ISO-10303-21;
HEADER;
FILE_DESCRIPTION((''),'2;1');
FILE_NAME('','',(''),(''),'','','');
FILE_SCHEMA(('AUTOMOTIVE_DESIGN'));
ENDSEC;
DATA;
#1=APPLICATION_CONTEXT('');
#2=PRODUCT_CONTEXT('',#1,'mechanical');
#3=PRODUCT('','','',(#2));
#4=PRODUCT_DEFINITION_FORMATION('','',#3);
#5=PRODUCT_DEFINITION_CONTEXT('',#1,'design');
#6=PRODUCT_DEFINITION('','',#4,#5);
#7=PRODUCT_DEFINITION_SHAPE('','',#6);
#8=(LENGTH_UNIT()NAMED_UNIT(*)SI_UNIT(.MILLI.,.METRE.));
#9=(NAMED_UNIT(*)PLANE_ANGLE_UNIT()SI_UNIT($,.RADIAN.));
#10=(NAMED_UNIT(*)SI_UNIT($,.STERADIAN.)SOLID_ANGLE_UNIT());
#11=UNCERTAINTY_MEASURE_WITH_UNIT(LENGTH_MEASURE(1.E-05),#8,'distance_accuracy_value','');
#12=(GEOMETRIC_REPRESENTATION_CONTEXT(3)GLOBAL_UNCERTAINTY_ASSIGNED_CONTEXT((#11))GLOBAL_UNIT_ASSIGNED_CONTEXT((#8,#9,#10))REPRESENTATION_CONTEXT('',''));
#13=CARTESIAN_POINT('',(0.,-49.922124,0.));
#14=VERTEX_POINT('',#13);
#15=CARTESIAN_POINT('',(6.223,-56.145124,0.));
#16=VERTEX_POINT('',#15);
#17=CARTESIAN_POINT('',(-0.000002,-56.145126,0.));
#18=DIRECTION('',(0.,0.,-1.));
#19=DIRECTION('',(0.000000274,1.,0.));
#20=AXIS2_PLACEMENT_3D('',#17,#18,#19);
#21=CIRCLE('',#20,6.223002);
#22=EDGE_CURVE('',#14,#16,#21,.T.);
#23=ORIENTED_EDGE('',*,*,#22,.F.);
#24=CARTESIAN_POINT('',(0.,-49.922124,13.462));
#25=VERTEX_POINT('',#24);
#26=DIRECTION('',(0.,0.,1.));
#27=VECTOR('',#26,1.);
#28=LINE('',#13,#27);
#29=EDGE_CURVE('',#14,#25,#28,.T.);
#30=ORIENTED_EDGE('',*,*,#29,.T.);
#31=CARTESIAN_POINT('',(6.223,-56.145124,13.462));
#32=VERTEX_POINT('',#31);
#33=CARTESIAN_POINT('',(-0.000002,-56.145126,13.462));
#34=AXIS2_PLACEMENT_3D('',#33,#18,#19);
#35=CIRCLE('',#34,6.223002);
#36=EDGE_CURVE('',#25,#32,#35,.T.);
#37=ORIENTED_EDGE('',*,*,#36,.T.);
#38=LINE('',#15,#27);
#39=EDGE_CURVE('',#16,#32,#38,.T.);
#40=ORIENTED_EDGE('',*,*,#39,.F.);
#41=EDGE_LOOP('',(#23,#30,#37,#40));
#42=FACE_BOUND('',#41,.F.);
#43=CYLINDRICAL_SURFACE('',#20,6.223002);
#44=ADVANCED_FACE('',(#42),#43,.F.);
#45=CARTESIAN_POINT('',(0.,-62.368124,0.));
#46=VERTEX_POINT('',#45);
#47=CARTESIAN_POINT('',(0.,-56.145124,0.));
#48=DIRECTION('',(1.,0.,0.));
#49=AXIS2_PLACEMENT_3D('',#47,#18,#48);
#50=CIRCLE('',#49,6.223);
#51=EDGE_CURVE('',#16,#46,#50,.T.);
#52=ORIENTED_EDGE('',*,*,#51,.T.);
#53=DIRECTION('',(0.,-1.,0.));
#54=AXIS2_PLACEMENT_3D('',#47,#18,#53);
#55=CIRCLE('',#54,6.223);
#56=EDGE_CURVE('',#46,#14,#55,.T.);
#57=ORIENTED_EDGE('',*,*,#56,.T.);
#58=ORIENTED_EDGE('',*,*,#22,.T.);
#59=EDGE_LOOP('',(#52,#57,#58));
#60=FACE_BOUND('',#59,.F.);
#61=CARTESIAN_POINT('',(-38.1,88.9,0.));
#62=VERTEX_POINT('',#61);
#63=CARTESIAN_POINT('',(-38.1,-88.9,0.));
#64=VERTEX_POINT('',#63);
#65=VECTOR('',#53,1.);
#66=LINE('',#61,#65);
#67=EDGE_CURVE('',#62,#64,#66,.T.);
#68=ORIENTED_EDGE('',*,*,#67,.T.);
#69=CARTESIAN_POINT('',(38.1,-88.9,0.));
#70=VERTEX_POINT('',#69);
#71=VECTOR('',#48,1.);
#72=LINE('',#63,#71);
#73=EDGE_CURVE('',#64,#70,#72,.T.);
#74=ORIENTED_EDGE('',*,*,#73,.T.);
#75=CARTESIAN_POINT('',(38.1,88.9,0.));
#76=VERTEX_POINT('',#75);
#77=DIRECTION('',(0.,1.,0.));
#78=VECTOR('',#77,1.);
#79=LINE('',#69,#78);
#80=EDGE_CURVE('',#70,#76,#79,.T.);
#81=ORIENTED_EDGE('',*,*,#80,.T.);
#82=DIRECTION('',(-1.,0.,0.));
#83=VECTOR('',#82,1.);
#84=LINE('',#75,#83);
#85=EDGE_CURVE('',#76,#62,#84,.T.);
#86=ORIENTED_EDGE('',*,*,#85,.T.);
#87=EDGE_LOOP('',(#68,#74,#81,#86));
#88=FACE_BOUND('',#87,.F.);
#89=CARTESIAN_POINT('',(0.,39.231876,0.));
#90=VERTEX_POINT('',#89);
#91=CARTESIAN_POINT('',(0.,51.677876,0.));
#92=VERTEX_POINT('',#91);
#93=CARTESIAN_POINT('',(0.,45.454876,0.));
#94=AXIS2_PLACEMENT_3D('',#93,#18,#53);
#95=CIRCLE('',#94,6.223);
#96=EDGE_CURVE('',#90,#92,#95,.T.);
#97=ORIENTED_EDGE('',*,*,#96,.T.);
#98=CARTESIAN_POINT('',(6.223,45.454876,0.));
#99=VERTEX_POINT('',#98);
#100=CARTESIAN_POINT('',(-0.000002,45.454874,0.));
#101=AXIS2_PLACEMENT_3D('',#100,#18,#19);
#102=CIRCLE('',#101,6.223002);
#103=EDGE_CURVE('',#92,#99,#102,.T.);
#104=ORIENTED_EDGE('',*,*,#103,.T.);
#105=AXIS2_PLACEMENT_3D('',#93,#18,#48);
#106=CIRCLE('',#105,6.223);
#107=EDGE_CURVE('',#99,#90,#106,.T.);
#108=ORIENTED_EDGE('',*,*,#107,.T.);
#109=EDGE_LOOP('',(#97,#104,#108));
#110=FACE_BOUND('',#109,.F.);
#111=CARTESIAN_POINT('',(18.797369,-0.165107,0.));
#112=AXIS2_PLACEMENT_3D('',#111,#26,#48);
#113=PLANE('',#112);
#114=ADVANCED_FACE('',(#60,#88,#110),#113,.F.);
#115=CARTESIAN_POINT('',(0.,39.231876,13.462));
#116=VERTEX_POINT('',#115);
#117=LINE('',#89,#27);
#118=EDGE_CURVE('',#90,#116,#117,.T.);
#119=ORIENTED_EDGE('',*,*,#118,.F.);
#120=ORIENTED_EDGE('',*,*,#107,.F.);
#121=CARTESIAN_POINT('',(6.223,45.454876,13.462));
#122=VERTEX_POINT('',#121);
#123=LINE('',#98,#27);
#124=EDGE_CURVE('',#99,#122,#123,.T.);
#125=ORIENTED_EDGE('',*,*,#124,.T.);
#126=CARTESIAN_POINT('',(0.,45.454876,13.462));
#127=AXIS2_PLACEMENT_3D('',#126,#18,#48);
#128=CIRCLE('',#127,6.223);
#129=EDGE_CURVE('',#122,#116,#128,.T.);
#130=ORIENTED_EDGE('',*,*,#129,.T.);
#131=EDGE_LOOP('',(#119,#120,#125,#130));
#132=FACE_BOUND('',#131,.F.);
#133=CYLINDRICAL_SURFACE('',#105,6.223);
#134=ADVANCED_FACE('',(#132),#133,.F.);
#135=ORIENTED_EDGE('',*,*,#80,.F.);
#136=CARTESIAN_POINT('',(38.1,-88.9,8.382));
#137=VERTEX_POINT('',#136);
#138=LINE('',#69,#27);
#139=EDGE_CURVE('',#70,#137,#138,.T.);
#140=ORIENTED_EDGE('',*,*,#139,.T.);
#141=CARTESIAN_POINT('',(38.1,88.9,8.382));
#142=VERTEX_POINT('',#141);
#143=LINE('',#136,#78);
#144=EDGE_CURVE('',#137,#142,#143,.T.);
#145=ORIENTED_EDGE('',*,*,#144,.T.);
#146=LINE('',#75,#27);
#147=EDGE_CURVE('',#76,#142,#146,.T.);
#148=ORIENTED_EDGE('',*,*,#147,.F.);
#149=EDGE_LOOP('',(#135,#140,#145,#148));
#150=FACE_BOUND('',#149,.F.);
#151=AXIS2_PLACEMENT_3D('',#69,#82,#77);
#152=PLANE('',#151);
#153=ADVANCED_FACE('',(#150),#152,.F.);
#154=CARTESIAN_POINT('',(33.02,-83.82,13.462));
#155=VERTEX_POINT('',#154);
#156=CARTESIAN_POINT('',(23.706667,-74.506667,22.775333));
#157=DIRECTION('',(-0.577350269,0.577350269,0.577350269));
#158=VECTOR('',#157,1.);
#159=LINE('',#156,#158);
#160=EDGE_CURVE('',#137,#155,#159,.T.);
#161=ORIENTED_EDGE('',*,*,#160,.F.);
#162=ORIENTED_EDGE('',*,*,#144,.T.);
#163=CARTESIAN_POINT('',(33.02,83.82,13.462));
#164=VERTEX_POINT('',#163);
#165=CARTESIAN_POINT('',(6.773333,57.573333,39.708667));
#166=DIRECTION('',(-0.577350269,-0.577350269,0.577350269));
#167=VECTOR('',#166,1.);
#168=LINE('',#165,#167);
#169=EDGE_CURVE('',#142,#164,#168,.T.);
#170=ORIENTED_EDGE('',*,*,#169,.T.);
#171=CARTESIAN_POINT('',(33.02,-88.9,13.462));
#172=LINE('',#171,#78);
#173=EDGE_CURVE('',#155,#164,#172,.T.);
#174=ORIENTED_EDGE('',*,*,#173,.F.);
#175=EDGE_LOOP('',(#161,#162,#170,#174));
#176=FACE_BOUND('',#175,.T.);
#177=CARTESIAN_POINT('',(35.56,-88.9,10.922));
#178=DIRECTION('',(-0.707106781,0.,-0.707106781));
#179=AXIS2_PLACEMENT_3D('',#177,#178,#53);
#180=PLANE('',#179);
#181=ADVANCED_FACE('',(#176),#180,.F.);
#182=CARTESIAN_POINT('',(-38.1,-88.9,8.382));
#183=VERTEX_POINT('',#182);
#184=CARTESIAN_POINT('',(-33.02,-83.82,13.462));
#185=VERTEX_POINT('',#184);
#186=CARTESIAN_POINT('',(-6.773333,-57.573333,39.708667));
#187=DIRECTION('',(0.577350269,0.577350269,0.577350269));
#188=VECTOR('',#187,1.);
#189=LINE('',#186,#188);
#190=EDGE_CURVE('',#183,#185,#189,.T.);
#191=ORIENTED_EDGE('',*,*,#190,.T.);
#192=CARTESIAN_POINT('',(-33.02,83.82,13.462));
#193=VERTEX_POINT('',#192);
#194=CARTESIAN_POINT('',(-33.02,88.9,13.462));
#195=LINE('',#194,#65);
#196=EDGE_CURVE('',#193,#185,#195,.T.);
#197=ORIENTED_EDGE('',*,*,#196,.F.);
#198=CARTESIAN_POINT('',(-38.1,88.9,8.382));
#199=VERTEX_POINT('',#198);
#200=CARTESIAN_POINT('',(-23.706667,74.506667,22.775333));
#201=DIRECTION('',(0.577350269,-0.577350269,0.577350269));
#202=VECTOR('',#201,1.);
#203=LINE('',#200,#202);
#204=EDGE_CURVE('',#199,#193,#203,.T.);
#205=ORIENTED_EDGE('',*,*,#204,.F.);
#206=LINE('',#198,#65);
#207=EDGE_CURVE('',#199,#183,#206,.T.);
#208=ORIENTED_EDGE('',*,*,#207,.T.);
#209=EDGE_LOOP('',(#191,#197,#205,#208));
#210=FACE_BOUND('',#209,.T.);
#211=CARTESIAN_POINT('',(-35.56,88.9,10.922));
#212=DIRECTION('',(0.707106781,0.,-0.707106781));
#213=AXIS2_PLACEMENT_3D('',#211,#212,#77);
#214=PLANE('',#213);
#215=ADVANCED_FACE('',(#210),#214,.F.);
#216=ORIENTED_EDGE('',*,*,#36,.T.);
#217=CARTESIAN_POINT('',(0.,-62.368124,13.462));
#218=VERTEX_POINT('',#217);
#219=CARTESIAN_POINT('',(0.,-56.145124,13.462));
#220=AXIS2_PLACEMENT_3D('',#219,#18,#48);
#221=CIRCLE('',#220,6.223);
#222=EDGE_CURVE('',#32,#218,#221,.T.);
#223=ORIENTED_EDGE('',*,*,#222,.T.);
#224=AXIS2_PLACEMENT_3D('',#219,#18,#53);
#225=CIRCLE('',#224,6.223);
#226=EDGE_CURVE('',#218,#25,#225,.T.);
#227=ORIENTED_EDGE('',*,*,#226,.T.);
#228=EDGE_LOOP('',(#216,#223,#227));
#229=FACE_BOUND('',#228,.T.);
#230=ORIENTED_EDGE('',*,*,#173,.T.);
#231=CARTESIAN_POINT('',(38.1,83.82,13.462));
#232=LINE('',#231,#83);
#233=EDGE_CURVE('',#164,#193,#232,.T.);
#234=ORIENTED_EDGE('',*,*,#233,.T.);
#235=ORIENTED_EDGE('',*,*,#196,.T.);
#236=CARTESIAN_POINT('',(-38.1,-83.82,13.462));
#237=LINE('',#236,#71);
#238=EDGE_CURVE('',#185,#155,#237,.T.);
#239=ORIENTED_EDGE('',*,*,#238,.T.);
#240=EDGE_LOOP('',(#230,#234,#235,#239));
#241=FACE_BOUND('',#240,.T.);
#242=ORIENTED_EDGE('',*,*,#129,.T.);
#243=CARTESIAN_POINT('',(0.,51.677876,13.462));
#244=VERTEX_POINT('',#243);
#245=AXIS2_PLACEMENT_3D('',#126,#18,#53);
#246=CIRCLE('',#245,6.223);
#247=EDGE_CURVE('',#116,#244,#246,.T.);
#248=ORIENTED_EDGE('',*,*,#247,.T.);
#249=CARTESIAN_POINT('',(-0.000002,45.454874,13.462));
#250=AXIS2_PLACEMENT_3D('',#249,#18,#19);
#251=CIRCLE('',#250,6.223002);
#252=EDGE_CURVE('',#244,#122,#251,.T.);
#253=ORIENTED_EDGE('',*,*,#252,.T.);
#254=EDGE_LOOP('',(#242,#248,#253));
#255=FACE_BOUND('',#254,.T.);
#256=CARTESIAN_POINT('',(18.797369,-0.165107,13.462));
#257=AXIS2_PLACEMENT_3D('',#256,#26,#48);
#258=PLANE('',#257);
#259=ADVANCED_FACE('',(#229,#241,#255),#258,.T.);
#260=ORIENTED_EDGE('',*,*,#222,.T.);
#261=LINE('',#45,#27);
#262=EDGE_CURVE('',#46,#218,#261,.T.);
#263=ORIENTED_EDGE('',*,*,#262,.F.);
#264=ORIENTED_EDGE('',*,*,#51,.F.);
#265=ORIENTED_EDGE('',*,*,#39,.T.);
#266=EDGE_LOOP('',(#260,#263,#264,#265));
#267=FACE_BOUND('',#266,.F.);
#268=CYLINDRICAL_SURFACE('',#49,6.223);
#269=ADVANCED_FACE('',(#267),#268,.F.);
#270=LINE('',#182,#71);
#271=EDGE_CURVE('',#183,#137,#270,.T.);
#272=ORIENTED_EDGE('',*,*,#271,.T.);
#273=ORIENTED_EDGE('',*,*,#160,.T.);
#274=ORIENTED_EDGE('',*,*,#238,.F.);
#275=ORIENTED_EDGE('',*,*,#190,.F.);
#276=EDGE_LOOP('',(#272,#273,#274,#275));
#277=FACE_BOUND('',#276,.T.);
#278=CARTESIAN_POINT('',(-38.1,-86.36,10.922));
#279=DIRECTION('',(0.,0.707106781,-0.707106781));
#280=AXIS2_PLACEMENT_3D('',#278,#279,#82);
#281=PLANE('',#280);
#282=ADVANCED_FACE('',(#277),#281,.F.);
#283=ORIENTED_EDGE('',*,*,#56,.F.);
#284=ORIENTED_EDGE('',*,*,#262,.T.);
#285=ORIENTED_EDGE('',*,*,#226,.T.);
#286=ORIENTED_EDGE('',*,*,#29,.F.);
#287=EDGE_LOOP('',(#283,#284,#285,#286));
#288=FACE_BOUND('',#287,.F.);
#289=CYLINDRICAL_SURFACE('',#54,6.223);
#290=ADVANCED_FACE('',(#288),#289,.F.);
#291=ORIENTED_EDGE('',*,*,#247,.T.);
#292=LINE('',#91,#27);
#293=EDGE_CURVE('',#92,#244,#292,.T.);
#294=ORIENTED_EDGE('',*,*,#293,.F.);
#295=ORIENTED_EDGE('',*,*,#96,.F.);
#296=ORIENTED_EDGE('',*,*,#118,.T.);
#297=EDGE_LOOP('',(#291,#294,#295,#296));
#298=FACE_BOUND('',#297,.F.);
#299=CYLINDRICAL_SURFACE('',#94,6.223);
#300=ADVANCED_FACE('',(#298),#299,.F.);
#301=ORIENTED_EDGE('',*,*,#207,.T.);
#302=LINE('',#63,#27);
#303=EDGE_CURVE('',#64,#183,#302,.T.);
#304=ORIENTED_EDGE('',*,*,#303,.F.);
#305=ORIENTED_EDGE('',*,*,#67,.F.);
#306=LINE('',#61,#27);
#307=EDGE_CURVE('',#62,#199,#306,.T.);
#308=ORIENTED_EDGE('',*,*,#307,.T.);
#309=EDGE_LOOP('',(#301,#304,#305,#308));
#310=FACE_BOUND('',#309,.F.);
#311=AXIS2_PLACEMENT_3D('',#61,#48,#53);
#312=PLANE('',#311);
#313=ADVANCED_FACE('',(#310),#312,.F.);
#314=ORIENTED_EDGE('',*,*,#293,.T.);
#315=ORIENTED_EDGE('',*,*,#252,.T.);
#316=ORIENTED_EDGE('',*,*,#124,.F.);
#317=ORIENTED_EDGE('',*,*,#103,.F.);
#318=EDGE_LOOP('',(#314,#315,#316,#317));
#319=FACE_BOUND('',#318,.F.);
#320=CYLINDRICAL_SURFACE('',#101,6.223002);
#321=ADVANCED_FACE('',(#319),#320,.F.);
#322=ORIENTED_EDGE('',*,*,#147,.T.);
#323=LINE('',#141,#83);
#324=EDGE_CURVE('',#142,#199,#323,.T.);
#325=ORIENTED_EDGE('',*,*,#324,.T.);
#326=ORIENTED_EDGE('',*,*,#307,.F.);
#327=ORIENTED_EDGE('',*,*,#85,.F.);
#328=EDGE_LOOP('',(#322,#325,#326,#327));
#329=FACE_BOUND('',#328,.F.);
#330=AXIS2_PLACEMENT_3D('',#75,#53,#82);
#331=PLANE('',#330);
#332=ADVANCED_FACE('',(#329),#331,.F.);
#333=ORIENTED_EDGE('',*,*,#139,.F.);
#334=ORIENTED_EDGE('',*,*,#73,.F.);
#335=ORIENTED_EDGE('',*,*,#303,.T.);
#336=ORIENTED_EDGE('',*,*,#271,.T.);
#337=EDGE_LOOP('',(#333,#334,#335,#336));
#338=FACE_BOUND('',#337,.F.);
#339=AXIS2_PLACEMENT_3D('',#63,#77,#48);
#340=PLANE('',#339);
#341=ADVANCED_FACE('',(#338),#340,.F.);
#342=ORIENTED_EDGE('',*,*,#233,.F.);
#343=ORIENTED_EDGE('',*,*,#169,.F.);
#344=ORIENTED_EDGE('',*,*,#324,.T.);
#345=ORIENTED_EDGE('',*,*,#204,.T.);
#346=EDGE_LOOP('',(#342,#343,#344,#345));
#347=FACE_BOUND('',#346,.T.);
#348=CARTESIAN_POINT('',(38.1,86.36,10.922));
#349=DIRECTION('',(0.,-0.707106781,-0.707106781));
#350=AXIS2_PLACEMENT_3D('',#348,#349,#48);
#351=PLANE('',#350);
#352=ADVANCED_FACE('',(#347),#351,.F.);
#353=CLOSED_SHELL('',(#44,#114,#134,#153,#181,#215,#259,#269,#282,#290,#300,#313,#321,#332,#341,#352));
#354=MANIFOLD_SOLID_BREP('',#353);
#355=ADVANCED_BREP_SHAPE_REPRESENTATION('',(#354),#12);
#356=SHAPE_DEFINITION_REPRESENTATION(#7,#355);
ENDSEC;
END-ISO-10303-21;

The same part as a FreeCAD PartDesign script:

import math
import FreeCAD as App
import Part
import Sketcher

V = App.Vector
Q = App.Units.Quantity


def edges_at(feature, points):
    """Names of the edges that pass closest to the given points."""
    edges = feature.Shape.Edges
    near = lambda p: min(range(len(edges)), key=lambda i: edges[i].distToShape(Part.Vertex(*p))[0])
    return sorted({f"Edge{near(p) + 1}" for p in points})


def add_polygon(sketch, points):
    """Adds a closed chain of lines whose ends are joined by coincident constraints."""
    first, n = sketch.GeometryCount, len(points)
    for a, b in zip(points, points[1:] + points[:1]):
        sketch.addGeometry(Part.LineSegment(App.Vector(*a, 0), App.Vector(*b, 0)), False)
    for i in range(n):
        sketch.addConstraint(Sketcher.Constraint("Coincident", first + i, 2, first + (i + 1) % n, 1))

doc = App.newDocument("Part")
params = doc.addObject("Spreadsheet::Sheet", "Params")
for row, (alias, value) in enumerate([
    ("sketch1_width", "3 in"),
    ("sketch1_height", "7 in"),
    ("sketch1_radius", "0.2450001 in"),
    ("pad1_length", "0.53 in"),
    ("chamfer_size", "0.2 in"),
], start=1):
    params.set(f"A{row}", alias)
    params.set(f"B{row}", "=" + value)
    params.setAlias(f"B{row}", alias)

body = doc.addObject("PartDesign::Body", "Body")

# Sketch on XY plane
sketch1 = doc.addObject("Sketcher::SketchObject", "Sketch")
body.addObject(sketch1)
sketch1.AttachmentSupport = (doc.XY_Plane, [""])
sketch1.MapMode = "FlatFace"
add_polygon(sketch1, [(38, 89), (-38, 89), (-38, -89), (38, -89)])  # lines 0-3
sketch1.addGeometry(Part.ArcOfCircle(Part.Circle(V(0, 45, 0), V(0, 0, 1), 6), math.radians(0), math.radians(90)), False)  # 4
sketch1.addGeometry(Part.ArcOfCircle(Part.Circle(V(0, 45, 0), V(0, 0, 1), 6), math.radians(-90), math.radians(0)), False)  # 5
sketch1.addGeometry(Part.ArcOfCircle(Part.Circle(V(0, 45, 0), V(0, 0, 1), 6), math.radians(90), math.radians(270)), False)  # 6
sketch1.addGeometry(Part.ArcOfCircle(Part.Circle(V(0, -56, 0), V(0, 0, 1), 6), math.radians(0), math.radians(90)), False)  # 7
sketch1.addGeometry(Part.ArcOfCircle(Part.Circle(V(0, -56, 0), V(0, 0, 1), 6), math.radians(-90), math.radians(0)), False)  # 8
sketch1.addGeometry(Part.ArcOfCircle(Part.Circle(V(0, -56, 0), V(0, 0, 1), 6), math.radians(90), math.radians(270)), False)  # 9
sketch1.addConstraint(Sketcher.Constraint("Tangent", 4, 1, 5, 2))
sketch1.addConstraint(Sketcher.Constraint("Tangent", 5, 1, 6, 2))
sketch1.addConstraint(Sketcher.Constraint("Tangent", 6, 1, 4, 2))
sketch1.addConstraint(Sketcher.Constraint("Tangent", 7, 1, 8, 2))
sketch1.addConstraint(Sketcher.Constraint("Tangent", 8, 1, 9, 2))
sketch1.addConstraint(Sketcher.Constraint("Tangent", 9, 1, 7, 2))
sketch1.addConstraint(Sketcher.Constraint("Horizontal", 0))
sketch1.addConstraint(Sketcher.Constraint("Vertical", 1))
sketch1.addConstraint(Sketcher.Constraint("Horizontal", 2))
sketch1.addConstraint(Sketcher.Constraint("Vertical", 3))
sketch1.addConstraint(Sketcher.Constraint("Equal", 6, 7))
sketch1.addConstraint(Sketcher.Constraint("Symmetric", 0, 2, 2, 2, -1, 1))
sketch1.addConstraint(Sketcher.Constraint("PointOnObject", 4, 3, -2))
sketch1.addConstraint(Sketcher.Constraint("PointOnObject", 7, 3, -2))
sketch1.addConstraint(Sketcher.Constraint("PointOnObject", 5, 1, -2))
sketch1.addConstraint(Sketcher.Constraint("PointOnObject", 6, 1, -2))
sketch1.addConstraint(Sketcher.Constraint("PointOnObject", 8, 1, -2))
sketch1.addConstraint(Sketcher.Constraint("PointOnObject", 9, 1, -2))
sketch1.addConstraint(Sketcher.Constraint("Horizontal", 6, 3, 4, 1))
sketch1.addConstraint(Sketcher.Constraint("Horizontal", 9, 3, 7, 1))
sketch1.addConstraint(Sketcher.Constraint("DistanceX", 0, 2, 0, 1, Q("3 in")))
sketch1.addConstraint(Sketcher.Constraint("DistanceY", 1, 2, 1, 1, Q("7 in")))
sketch1.addConstraint(Sketcher.Constraint("Radius", 4, Q("0.2450001 in")))
sketch1.addConstraint(Sketcher.Constraint("DistanceY", 7, 3, 4, 3, Q("4 in")))
sketch1.addConstraint(Sketcher.Constraint("DistanceY", -1, 1, 4, 3, 45.454874))
sketch1.setExpression("Constraints[24]", "Params.sketch1_width")
sketch1.setExpression("Constraints[25]", "Params.sketch1_height")
sketch1.setExpression("Constraints[26]", "Params.sketch1_radius")
pad1 = doc.addObject("PartDesign::Pad", "Pad")
body.addObject(pad1)
pad1.Profile = sketch1
pad1.setExpression("Length", "Params.pad1_length")
doc.recompute()

chamfer = doc.addObject("PartDesign::Chamfer", "Chamfer")
body.addObject(chamfer)
chamfer.Base = (pad1, edges_at(pad1, [
    (-38.1, 0, 13.462),
    (38.1, 0, 13.462),
    (0, 88.9, 13.462),
    (0, -88.9, 13.462),
]))
chamfer.setExpression("Size", "Params.chamfer_size")

doc.recompute()
